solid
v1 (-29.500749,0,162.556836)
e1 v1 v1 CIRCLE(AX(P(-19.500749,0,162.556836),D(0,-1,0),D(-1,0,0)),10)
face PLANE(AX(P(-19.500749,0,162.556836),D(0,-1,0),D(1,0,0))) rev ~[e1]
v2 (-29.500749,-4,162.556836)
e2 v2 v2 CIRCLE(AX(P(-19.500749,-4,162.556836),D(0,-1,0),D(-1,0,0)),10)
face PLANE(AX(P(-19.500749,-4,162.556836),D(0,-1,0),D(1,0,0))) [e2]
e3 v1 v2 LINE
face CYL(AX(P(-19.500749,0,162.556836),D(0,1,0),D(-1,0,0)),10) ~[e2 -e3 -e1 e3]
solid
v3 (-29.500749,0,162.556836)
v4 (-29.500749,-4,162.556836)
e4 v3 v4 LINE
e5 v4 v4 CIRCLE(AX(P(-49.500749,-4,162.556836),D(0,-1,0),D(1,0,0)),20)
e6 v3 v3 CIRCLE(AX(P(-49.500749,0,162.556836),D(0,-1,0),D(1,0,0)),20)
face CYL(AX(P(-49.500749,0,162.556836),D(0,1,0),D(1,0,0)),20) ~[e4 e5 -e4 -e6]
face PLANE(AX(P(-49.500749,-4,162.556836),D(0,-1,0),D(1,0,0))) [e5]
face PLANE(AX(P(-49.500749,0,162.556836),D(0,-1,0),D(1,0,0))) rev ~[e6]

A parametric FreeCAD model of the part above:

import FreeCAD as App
import Part
import Sketcher

doc = App.newDocument("Part")
params = doc.addObject("Spreadsheet::Sheet", "Params")
for row, (alias, value) in enumerate([
    ("sketch1_diameter", "40 mm"),
    ("sketch1_diameter2", "20 mm"),
    ("pad1_length", "4 mm"),
], start=1):
    params.set(f"A{row}", alias)
    params.set(f"B{row}", "=" + value)
    params.setAlias(f"B{row}", alias)

body = doc.addObject("PartDesign::Body", "Body")
body.AllowCompound = True

sketch1 = doc.addObject("Sketcher::SketchObject", "Sketch")
body.addObject(sketch1)
sketch1.AttachmentSupport = (doc.XZ_Plane, [""])
sketch1.MapMode = "FlatFace"
sketch1.addGeometry([
    Part.Circle(App.Vector(-50, 163, 0), App.Vector(0, 0, 1), 20),
    Part.Circle(App.Vector(-20, 163, 0), App.Vector(0, 0, 1), 10),
], False)
sketch1.addConstraint([
    Sketcher.Constraint("Horizontal", 0, 3, 1, 3),
    Sketcher.Constraint("Diameter", 0, 40.0),
    Sketcher.Constraint("Diameter", 1, 20.0),
    Sketcher.Constraint("DistanceX", 0, 3, 1, 3, 30.0),
    Sketcher.Constraint("DistanceX", 0, 3, -1, 1, 49.500749),
    Sketcher.Constraint("DistanceY", -1, 1, 0, 3, 162.556836),
])
sketch1.setExpression("Constraints[1]", "Params.sketch1_diameter")
sketch1.setExpression("Constraints[2]", "Params.sketch1_diameter2")
pad1 = doc.addObject("PartDesign::Pad", "Pad")
body.addObject(pad1)
pad1.Profile = sketch1
pad1.setExpression("Length", "Params.pad1_length")

doc.recompute()
